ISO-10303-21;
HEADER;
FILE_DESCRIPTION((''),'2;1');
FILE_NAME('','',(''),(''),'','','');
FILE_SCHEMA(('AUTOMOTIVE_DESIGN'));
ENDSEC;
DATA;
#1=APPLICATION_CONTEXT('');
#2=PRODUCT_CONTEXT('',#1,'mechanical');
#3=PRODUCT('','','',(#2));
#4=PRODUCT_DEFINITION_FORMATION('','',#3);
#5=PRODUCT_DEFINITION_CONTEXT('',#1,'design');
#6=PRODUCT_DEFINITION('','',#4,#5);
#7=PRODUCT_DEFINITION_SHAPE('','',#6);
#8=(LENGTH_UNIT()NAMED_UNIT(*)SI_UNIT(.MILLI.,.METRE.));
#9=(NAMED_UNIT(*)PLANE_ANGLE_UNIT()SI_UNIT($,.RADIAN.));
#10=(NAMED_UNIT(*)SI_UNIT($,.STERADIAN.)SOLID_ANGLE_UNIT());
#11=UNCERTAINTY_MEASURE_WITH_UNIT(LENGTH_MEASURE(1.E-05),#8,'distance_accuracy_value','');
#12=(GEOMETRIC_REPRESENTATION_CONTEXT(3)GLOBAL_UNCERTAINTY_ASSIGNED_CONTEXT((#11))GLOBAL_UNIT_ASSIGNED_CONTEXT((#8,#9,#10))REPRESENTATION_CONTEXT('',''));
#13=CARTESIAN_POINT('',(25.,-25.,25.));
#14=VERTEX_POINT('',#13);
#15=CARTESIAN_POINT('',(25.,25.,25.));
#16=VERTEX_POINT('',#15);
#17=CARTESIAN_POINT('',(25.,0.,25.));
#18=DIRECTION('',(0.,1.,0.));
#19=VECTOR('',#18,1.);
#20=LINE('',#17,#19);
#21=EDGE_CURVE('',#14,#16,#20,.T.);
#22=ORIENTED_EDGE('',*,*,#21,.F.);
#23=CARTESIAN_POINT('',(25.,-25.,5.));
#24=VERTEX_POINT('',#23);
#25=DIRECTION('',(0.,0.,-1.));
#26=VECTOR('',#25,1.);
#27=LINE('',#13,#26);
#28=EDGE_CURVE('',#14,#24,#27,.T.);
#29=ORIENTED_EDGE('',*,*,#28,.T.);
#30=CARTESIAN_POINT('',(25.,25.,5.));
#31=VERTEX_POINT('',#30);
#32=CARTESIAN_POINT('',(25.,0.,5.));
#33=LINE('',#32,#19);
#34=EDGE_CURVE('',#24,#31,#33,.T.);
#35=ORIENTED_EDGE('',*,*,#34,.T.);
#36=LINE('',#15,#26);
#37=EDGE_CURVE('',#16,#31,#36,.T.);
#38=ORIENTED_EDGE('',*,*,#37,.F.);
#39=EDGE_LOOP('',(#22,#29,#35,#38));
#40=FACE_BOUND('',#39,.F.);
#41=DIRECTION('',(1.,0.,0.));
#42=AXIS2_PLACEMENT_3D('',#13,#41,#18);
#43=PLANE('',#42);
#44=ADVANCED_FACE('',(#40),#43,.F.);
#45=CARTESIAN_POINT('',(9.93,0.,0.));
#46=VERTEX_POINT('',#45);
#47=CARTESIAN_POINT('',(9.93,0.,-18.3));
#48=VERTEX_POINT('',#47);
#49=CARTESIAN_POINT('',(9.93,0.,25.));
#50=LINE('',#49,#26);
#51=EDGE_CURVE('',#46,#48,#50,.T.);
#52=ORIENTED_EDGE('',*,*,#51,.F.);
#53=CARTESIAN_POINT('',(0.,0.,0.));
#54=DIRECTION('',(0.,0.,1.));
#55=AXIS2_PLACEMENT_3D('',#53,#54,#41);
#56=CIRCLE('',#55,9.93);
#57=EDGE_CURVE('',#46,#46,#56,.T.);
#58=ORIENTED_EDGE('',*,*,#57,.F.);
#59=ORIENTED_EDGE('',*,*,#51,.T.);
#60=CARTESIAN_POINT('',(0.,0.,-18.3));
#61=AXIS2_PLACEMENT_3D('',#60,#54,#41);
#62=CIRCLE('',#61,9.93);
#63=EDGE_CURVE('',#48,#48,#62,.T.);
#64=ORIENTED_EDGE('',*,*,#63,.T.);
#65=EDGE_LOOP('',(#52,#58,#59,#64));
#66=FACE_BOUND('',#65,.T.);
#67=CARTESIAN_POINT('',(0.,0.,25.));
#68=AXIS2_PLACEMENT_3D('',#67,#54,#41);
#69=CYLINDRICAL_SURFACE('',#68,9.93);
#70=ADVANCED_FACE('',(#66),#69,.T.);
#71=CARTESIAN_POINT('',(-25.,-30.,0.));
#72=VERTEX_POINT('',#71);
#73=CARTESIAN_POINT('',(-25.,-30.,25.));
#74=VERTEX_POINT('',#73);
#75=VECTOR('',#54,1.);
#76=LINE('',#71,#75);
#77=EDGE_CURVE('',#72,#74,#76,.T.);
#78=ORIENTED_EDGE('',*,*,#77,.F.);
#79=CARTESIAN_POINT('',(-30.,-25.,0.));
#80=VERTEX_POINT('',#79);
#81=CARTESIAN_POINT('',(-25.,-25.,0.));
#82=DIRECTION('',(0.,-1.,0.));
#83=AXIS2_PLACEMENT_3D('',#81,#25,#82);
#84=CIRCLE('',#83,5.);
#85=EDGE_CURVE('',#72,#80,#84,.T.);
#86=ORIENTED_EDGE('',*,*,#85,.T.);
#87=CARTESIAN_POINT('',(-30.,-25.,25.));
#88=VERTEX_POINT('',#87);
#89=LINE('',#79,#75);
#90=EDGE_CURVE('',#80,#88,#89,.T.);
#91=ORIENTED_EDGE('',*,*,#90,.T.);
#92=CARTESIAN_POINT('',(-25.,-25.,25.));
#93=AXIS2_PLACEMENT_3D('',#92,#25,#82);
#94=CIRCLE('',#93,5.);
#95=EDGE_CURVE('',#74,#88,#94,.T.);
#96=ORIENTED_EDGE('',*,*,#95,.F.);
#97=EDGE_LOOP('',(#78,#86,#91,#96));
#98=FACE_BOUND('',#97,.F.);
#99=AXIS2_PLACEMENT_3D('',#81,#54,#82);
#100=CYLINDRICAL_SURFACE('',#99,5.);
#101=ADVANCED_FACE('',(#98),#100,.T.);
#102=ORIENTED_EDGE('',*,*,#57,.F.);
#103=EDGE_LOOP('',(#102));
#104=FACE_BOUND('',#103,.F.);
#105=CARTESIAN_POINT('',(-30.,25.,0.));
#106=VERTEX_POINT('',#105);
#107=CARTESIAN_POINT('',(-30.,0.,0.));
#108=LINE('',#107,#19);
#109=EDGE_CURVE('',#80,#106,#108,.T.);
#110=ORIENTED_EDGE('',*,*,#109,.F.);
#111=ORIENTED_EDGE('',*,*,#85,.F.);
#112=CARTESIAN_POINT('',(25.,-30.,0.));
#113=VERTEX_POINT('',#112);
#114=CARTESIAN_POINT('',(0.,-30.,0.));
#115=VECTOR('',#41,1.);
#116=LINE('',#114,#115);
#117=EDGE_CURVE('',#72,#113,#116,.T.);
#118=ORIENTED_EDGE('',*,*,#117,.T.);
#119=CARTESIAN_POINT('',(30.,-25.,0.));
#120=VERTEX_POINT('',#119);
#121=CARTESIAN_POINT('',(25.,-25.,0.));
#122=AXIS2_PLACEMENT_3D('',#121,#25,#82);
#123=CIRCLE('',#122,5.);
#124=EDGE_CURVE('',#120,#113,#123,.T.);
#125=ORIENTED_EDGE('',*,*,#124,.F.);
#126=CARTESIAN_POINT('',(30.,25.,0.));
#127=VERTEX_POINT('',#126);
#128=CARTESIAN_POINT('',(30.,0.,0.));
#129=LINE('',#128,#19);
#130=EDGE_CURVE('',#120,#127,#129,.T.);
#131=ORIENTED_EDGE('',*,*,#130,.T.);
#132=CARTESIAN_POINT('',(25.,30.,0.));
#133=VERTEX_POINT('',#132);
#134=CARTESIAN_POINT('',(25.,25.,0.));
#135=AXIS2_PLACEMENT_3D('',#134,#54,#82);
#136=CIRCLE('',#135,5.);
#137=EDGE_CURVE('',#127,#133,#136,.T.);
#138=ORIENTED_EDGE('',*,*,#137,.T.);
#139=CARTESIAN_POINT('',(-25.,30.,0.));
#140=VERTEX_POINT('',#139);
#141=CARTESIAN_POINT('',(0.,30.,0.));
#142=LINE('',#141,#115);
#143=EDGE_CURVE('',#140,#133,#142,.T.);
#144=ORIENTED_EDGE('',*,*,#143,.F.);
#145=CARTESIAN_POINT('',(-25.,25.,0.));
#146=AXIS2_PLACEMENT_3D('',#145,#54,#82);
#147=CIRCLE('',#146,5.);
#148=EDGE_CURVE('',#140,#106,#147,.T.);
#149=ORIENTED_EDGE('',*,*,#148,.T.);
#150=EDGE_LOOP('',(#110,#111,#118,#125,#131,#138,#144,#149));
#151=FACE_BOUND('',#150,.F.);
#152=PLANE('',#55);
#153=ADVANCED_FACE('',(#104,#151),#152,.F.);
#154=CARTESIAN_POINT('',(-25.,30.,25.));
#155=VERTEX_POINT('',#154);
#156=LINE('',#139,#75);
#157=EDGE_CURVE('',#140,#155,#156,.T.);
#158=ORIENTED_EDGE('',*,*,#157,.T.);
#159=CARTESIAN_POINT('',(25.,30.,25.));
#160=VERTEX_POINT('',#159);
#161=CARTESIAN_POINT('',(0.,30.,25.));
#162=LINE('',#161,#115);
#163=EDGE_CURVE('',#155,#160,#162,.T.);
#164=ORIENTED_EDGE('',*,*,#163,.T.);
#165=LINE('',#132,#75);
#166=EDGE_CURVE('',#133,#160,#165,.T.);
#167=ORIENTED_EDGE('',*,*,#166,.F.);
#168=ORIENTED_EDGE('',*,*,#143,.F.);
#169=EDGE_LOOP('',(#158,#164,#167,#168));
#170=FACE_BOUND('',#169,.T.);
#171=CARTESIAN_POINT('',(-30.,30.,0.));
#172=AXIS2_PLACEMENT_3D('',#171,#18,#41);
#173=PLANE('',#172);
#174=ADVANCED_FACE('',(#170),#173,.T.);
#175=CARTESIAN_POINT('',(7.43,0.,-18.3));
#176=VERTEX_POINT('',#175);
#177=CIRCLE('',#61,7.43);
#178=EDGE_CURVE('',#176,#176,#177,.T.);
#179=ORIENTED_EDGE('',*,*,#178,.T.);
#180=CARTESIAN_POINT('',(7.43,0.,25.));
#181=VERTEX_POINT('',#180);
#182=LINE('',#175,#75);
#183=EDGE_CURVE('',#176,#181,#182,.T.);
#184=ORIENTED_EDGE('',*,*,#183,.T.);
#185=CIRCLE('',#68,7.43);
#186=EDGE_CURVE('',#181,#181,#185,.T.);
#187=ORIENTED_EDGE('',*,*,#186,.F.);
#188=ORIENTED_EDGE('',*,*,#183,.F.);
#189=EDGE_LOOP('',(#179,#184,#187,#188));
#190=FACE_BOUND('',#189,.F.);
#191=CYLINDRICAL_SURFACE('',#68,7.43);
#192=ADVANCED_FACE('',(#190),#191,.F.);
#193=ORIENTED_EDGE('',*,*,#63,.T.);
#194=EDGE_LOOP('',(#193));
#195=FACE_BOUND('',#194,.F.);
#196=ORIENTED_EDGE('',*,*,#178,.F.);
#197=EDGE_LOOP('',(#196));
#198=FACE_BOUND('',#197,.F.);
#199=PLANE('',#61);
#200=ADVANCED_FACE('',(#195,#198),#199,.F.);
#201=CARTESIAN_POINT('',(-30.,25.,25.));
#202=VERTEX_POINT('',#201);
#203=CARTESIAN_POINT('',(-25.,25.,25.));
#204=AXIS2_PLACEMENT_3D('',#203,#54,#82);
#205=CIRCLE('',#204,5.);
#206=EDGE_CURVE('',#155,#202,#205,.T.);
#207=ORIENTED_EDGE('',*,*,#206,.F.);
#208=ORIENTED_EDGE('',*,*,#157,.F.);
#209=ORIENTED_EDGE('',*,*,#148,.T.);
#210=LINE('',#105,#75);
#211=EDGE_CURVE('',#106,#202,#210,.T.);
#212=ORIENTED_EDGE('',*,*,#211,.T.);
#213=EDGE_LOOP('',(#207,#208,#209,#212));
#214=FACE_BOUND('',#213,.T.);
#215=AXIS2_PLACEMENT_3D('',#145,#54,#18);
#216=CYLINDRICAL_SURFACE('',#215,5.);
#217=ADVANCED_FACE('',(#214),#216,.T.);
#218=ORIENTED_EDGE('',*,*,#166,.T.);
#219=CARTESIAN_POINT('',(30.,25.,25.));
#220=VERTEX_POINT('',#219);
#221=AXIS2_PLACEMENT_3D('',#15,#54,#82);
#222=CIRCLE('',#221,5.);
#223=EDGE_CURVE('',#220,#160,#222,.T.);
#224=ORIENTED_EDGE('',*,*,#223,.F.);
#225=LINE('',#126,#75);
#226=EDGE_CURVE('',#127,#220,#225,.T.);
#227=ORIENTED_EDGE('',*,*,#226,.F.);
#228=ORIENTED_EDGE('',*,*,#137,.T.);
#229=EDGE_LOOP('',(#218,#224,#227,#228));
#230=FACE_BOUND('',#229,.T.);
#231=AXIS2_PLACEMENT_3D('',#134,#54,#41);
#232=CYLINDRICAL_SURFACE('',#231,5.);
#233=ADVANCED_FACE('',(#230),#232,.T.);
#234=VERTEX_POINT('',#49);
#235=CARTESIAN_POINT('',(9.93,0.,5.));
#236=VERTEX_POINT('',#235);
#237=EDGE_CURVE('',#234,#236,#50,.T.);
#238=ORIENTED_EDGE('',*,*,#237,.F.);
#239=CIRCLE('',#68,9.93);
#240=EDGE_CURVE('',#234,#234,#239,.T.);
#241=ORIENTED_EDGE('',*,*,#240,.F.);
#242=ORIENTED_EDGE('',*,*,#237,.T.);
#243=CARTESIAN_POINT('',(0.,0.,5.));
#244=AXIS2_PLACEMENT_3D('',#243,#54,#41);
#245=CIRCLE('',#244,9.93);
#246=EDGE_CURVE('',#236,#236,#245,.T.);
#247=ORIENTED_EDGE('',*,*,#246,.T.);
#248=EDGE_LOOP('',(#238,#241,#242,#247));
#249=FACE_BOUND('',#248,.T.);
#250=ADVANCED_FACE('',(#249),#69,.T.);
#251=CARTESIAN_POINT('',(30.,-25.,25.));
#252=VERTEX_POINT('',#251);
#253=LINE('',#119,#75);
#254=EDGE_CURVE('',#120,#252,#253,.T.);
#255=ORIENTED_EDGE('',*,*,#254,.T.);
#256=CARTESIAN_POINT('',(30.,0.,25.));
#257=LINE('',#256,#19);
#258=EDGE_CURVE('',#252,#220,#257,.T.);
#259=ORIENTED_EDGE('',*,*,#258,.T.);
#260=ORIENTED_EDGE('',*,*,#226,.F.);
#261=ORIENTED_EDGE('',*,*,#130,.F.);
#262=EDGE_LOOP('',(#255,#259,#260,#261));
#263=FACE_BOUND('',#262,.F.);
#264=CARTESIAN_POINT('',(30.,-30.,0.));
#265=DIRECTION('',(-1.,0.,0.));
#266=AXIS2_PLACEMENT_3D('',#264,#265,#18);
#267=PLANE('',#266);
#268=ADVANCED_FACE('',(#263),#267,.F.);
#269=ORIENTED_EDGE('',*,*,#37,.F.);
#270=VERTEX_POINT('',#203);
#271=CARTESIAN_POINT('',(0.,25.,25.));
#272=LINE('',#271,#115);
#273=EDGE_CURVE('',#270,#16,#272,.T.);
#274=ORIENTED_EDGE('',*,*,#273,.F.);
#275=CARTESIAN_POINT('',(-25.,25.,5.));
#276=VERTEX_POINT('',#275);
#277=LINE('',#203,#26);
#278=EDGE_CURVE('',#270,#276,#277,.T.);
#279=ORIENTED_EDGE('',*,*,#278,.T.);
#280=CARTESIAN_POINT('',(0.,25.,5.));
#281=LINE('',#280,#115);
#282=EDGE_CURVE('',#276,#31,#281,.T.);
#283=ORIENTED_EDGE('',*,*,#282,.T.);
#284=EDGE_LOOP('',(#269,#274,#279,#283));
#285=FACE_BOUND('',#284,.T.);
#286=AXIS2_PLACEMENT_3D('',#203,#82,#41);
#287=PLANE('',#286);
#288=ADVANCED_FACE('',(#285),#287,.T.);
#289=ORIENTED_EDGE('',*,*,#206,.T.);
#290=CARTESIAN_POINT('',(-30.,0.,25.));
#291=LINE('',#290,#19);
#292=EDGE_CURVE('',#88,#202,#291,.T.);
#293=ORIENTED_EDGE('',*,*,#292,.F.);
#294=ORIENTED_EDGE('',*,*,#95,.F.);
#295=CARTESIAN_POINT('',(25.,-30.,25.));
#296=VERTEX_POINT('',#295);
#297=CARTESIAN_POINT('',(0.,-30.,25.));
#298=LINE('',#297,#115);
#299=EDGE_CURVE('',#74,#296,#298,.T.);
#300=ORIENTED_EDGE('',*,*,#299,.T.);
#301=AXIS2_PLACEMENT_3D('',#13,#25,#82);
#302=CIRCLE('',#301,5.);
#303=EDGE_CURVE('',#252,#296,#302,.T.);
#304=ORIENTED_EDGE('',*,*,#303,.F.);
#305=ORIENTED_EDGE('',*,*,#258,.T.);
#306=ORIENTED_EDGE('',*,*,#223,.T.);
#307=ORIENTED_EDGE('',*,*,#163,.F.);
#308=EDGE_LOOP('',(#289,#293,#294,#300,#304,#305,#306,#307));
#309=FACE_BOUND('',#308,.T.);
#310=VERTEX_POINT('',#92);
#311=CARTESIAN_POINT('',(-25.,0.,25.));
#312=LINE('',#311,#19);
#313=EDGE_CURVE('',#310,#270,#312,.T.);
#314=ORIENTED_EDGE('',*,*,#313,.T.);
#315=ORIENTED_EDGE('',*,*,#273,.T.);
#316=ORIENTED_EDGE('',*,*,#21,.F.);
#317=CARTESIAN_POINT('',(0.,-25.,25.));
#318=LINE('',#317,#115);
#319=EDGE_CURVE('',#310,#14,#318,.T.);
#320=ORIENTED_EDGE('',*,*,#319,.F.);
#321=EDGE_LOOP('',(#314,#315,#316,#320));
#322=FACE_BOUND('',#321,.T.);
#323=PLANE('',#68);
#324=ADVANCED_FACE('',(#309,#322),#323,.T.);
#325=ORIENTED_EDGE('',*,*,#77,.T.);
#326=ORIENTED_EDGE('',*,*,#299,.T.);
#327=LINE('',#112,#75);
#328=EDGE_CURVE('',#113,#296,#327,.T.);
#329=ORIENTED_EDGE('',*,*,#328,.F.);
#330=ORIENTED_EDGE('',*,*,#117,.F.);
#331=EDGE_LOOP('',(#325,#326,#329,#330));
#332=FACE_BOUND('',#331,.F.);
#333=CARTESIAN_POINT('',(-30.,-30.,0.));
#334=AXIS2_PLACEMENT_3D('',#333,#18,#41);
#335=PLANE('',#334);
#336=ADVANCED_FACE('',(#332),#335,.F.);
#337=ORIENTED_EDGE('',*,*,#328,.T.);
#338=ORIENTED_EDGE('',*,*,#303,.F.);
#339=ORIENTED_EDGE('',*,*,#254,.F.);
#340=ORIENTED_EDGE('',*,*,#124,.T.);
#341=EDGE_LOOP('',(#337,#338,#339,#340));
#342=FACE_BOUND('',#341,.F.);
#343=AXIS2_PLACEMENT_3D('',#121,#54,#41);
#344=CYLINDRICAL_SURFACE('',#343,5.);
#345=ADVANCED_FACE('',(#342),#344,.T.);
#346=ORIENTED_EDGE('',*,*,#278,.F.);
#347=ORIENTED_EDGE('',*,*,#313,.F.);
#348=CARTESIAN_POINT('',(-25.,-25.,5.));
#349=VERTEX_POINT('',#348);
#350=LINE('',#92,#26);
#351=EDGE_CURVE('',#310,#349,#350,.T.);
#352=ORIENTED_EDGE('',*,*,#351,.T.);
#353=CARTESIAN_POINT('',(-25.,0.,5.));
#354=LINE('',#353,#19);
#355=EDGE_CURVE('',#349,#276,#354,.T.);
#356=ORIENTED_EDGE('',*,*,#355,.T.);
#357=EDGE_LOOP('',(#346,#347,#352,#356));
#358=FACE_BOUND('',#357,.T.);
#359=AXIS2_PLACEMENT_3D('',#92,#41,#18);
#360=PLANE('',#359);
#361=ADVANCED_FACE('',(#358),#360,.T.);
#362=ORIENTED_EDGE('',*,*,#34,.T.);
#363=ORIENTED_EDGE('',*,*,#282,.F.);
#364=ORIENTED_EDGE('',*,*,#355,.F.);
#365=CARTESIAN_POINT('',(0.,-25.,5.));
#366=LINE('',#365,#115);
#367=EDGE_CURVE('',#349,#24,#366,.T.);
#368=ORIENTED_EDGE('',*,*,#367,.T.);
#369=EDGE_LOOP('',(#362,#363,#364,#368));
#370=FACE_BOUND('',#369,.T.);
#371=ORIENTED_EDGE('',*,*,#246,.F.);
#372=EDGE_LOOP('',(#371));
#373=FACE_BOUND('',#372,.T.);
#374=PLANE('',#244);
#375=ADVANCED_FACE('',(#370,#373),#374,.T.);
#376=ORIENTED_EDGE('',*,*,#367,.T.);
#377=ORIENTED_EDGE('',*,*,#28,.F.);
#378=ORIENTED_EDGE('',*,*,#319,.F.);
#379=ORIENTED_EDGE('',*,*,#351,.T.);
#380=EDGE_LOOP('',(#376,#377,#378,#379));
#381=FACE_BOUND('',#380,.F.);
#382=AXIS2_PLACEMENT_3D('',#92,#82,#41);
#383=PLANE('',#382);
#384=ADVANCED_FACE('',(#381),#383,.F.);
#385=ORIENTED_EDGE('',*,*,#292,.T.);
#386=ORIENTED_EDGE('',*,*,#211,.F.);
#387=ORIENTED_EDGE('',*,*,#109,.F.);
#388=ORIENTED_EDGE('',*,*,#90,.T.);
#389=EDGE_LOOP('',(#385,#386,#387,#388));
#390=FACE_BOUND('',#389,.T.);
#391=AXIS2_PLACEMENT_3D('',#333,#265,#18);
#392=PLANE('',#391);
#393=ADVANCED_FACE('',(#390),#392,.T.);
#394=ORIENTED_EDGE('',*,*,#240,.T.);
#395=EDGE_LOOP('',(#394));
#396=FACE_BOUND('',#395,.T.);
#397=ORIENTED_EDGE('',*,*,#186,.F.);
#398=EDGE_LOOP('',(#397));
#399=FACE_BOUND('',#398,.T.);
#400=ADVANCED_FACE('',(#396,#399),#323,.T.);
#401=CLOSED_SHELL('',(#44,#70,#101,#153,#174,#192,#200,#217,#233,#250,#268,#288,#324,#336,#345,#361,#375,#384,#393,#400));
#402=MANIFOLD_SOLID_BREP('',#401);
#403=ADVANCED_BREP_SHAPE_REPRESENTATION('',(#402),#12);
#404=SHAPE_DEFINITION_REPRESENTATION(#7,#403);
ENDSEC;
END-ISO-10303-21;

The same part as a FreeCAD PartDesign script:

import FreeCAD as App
import Part
import Sketcher
Q = App.Units.Quantity


def edges_at(feature, points):
    """Names of the edges that pass closest to the given points."""
    edges = feature.Shape.Edges
    near = lambda p: min(range(len(edges)), key=lambda i: edges[i].distToShape(Part.Vertex(*p))[0])
    return sorted({f"Edge{near(p) + 1}" for p in points})

doc = App.newDocument("Part")
body = doc.addObject("PartDesign::Body", "Body")

sketch1 = body.newObject("Sketcher::SketchObject", "Sketch")
sketch1.AttachmentSupport = (doc.getObject("XY_Plane"), [""])
sketch1.MapMode = "FlatFace"
sketch1.addGeometry([
    Part.LineSegment(App.Vector(-30, 30, 0), App.Vector(-30, -30, 0)),
    Part.LineSegment(App.Vector(-30, -30, 0), App.Vector(30, -30, 0)),
    Part.LineSegment(App.Vector(30, -30, 0), App.Vector(30, 30, 0)),
    Part.LineSegment(App.Vector(30, 30, 0), App.Vector(-30, 30, 0)),
], False)
sketch1.addConstraint([
    Sketcher.Constraint("Coincident", 0, 2, 1, 1),
    Sketcher.Constraint("Coincident", 1, 2, 2, 1),
    Sketcher.Constraint("Coincident", 2, 2, 3, 1),
    Sketcher.Constraint("Coincident", 3, 2, 0, 1),
    Sketcher.Constraint("Vertical", 0),
    Sketcher.Constraint("Horizontal", 1),
    Sketcher.Constraint("Vertical", 2),
    Sketcher.Constraint("Horizontal", 3),
    Sketcher.Constraint("Symmetric", 0, 2, 2, 2, -1, 1),
    Sketcher.Constraint("Equal", 3, 0),
    Sketcher.Constraint("DistanceX", 1, 1, 1, 2, Q("60 mm")),
])
pad1 = body.newObject("PartDesign::Pad", "Pad")
pad1.Profile = sketch1
pad1.Length = 25

sketch2 = body.newObject("Sketcher::SketchObject", "Sketch001")
sketch2.AttachmentSupport = (doc.getObject("XY_Plane"), [""])
sketch2.MapMode = "FlatFace"
sketch2.AttachmentOffset = App.Placement(App.Vector(0, 0, 25), App.Rotation())
sketch2.addGeometry([
    Part.LineSegment(App.Vector(-25, 25, 0), App.Vector(-25, -25, 0)),
    Part.LineSegment(App.Vector(-25, -25, 0), App.Vector(25, -25, 0)),
    Part.LineSegment(App.Vector(25, -25, 0), App.Vector(25, 25, 0)),
    Part.LineSegment(App.Vector(25, 25, 0), App.Vector(-25, 25, 0)),
], False)
sketch2.addConstraint([
    Sketcher.Constraint("Coincident", 0, 2, 1, 1),
    Sketcher.Constraint("Coincident", 1, 2, 2, 1),
    Sketcher.Constraint("Coincident", 2, 2, 3, 1),
    Sketcher.Constraint("Coincident", 3, 2, 0, 1),
    Sketcher.Constraint("Vertical", 0),
    Sketcher.Constraint("Horizontal", 1),
    Sketcher.Constraint("Vertical", 2),
    Sketcher.Constraint("Horizontal", 3),
    Sketcher.Constraint("Symmetric", 0, 2, 2, 2, -1, 1),
    Sketcher.Constraint("Equal", 3, 0),
    Sketcher.Constraint("DistanceX", 1, 1, 1, 2, Q("50 mm")),
])
pocket1 = body.newObject("PartDesign::Pocket", "Pocket")
pocket1.Profile = sketch2
pocket1.Length = 20

sketch3 = body.newObject("Sketcher::SketchObject", "Sketch002")
sketch3.AttachmentSupport = (doc.getObject("XY_Plane"), [""])
sketch3.MapMode = "FlatFace"
sketch3.AttachmentOffset = App.Placement(App.Vector(0, 0, 25), App.Rotation())
sketch3.addGeometry([
    Part.Circle(App.Vector(0, 0, 0), App.Vector(0, 0, 1), 10),
    Part.Circle(App.Vector(0, 0, 0), App.Vector(0, 0, 1), 7),
], False)
sketch3.addConstraint([
    Sketcher.Constraint("Coincident", 0, 3, -1, 1),
    Sketcher.Constraint("Coincident", 1, 3, -1, 1),
    Sketcher.Constraint("Diameter", 0, Q("19.86 mm")),
    Sketcher.Constraint("Diameter", 1, Q("14.86 mm")),
])
pad2 = body.newObject("PartDesign::Pad", "Pad001")
pad2.Profile = sketch3
pad2.Length = 43.3
pad2.Reversed = True

sketch4 = body.newObject("Sketcher::SketchObject", "Sketch003")
sketch4.AttachmentSupport = (doc.getObject("XY_Plane"), [""])
sketch4.MapMode = "FlatFace"
sketch4.AttachmentOffset = App.Placement(App.Vector(0, 0, 25), App.Rotation())
sketch4.addGeometry(Part.Circle(App.Vector(0, 0, 0), App.Vector(0, 0, 1), 7), False)
sketch4.addConstraint([
    Sketcher.Constraint("Coincident", 0, 3, -1, 1),
    Sketcher.Constraint("Diameter", 0, Q("14.86 mm")),
])
pocket2 = body.newObject("PartDesign::Pocket", "Pocket001")
pocket2.Profile = sketch4
pocket2.Length = 56.5
doc.recompute()

fillet = body.newObject("PartDesign::Fillet", "Fillet")
fillet.Base = (pocket2, edges_at(pocket2, [
    (-30, -30, 12.5),
    (30, -30, 12.5),
    (30, 30, 12.5),
    (-30, 30, 12.5),
]))
fillet.Radius = 5

doc.recompute()
